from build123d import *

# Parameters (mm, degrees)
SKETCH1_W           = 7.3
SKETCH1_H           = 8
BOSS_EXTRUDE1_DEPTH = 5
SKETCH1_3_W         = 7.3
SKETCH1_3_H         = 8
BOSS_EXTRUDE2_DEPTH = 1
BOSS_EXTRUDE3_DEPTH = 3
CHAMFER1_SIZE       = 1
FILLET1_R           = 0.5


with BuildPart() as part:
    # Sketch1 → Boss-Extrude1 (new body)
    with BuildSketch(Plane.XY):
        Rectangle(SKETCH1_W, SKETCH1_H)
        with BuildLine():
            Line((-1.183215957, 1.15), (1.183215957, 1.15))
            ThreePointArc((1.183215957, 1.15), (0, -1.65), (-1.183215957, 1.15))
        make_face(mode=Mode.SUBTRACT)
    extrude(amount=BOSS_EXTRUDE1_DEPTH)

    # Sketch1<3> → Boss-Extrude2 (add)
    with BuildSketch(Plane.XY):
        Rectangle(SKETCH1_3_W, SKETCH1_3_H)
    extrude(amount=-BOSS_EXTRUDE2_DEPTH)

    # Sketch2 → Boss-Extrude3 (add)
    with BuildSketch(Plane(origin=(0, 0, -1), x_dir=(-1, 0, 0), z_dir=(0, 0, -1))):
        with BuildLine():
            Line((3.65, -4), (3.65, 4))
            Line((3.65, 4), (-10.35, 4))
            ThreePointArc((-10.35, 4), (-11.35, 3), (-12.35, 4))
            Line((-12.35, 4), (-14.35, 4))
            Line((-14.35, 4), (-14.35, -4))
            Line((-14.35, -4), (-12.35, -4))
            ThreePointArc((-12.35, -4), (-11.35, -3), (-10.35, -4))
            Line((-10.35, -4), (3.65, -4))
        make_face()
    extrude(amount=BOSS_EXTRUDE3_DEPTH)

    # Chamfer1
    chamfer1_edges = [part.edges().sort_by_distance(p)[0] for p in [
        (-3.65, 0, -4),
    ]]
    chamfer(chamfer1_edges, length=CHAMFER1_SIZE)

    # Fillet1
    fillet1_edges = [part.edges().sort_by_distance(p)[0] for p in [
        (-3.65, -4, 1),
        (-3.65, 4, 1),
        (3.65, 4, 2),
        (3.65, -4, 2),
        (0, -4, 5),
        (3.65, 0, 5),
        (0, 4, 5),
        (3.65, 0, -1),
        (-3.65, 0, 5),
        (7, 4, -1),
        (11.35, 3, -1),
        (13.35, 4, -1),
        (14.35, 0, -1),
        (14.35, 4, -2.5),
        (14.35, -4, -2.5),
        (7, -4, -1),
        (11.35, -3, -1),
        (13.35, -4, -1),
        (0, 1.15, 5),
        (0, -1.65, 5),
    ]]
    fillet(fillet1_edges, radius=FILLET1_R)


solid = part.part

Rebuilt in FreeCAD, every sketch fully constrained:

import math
import FreeCAD as App
import Part
import Sketcher
from FreeCAD import Vector
Q = App.Units.Quantity


def edges_at(feature, points):
    """Names of the edges that pass closest to the given points."""
    edges = feature.Shape.Edges
    near = lambda p: min(range(len(edges)), key=lambda i: edges[i].distToShape(Part.Vertex(*p))[0])
    return sorted({f"Edge{near(p) + 1}" for p in points})

doc = App.newDocument("Part")
body = doc.addObject("PartDesign::Body", "Body")

# Sketch on XY plane
sketch1 = body.newObject("Sketcher::SketchObject", "Sketch")
sketch1.AttachmentSupport = (doc.getObject("XY_Plane"), [""])
sketch1.MapMode = "FlatFace"
sketch1.addGeometry([
    Part.LineSegment(Vector(-3.6, 4, 0), Vector(-3.6, -4, 0)),  # 0
    Part.LineSegment(Vector(-3.6, -4, 0), Vector(3.6, -4, 0)),  # 1
    Part.LineSegment(Vector(3.6, -4, 0), Vector(3.6, 4, 0)),  # 2
    Part.LineSegment(Vector(3.6, 4, 0), Vector(-3.6, 4, 0)),  # 3
    Part.ArcOfCircle(Part.Circle(Vector(0, 0, 0), Vector(0, 0, 1), 1.6), math.radians(136), math.radians(404)),  # 4
    Part.LineSegment(Vector(-1.2, 1.1, 0), Vector(1.2, 1.1, 0)),  # 5
], False)
sketch1.addConstraint([
    Sketcher.Constraint("Coincident", 0, 2, 1, 1),
    Sketcher.Constraint("Coincident", 1, 2, 2, 1),
    Sketcher.Constraint("Coincident", 2, 2, 3, 1),
    Sketcher.Constraint("Coincident", 3, 2, 0, 1),
    Sketcher.Constraint("Coincident", 4, 1, 5, 1),
    Sketcher.Constraint("Coincident", 5, 2, 4, 2),
    Sketcher.Constraint("Vertical", 0),
    Sketcher.Constraint("Horizontal", 1),
    Sketcher.Constraint("Vertical", 2),
    Sketcher.Constraint("Horizontal", 3),
    Sketcher.Constraint("Horizontal", 5),
    Sketcher.Constraint("Coincident", 4, 3, -1, 1),
    Sketcher.Constraint("Symmetric", 0, 2, 2, 2, -1, 1),
    Sketcher.Constraint("DistanceY", 0, 2, 0, 1, Q("8 mm")),
    Sketcher.Constraint("Radius", 4, Q("1.65 mm")),
    Sketcher.Constraint("DistanceX", 1, 1, 1, 2, Q("7.3 mm")),
    Sketcher.Constraint("DistanceY", -1, 1, 4, 1, Q("1.15 mm")),
])
pad1 = body.newObject("PartDesign::Pad", "Pad")
pad1.Profile = sketch1
pad1.Length = 5

# Sketch on XY plane
sketch2 = body.newObject("Sketcher::SketchObject", "Sketch001")
sketch2.AttachmentSupport = (doc.getObject("XY_Plane"), [""])
sketch2.MapMode = "FlatFace"
sketch2.addGeometry([
    Part.LineSegment(Vector(-4, 4, 0), Vector(-4, -4, 0)),
    Part.LineSegment(Vector(-4, -4, 0), Vector(4, -4, 0)),
    Part.LineSegment(Vector(4, -4, 0), Vector(4, 4, 0)),
    Part.LineSegment(Vector(4, 4, 0), Vector(-4, 4, 0)),
], False)
sketch2.addConstraint([
    Sketcher.Constraint("Coincident", 0, 2, 1, 1),
    Sketcher.Constraint("Coincident", 1, 2, 2, 1),
    Sketcher.Constraint("Coincident", 2, 2, 3, 1),
    Sketcher.Constraint("Coincident", 3, 2, 0, 1),
    Sketcher.Constraint("Vertical", 0),
    Sketcher.Constraint("Horizontal", 1),
    Sketcher.Constraint("Vertical", 2),
    Sketcher.Constraint("Horizontal", 3),
    Sketcher.Constraint("Symmetric", 0, 2, 2, 2, -1, 1),
    Sketcher.Constraint("DistanceY", 0, 2, 0, 1, Q("8 mm")),
    Sketcher.Constraint("DistanceX", 1, 1, 1, 2, Q("7.3 mm")),
])
pad2 = body.newObject("PartDesign::Pad", "Pad001")
pad2.Profile = sketch2
pad2.Length = 1
pad2.Reversed = True

# Sketch on XY plane
sketch3 = body.newObject("Sketcher::SketchObject", "Sketch002")
sketch3.AttachmentSupport = (doc.getObject("XY_Plane"), [""])
sketch3.MapMode = "FlatFace"
sketch3.AttachmentOffset = App.Placement(Vector(0, 0, -1), App.Rotation())
sketch3.addGeometry([
    Part.LineSegment(Vector(-3.6, -4, 0), Vector(-3.6, 4, 0)),  # 0
    Part.LineSegment(Vector(-3.6, 4, 0), Vector(10.3, 4, 0)),  # 1
    Part.ArcOfCircle(Part.Circle(Vector(11.3, 4, 0), Vector(0, 0, 1), 1), math.radians(180), math.radians(360)),  # 2
    Part.LineSegment(Vector(12.3, 4, 0), Vector(14.3, 4, 0)),  # 3
    Part.LineSegment(Vector(14.3, 4, 0), Vector(14.3, -4, 0)),  # 4
    Part.LineSegment(Vector(14.3, -4, 0), Vector(12.3, -4, 0)),  # 5
    Part.ArcOfCircle(Part.Circle(Vector(11.3, -4, 0), Vector(0, 0, 1), 1), math.radians(0), math.radians(180)),  # 6
    Part.LineSegment(Vector(10.3, -4, 0), Vector(-3.6, -4, 0)),  # 7
], False)
sketch3.addConstraint([
    Sketcher.Constraint("Coincident", 0, 2, 1, 1),
    Sketcher.Constraint("Coincident", 1, 2, 2, 1),
    Sketcher.Constraint("Coincident", 2, 2, 3, 1),
    Sketcher.Constraint("Coincident", 3, 2, 4, 1),
    Sketcher.Constraint("Coincident", 4, 2, 5, 1),
    Sketcher.Constraint("Coincident", 5, 2, 6, 1),
    Sketcher.Constraint("Coincident", 6, 2, 7, 1),
    Sketcher.Constraint("Coincident", 7, 2, 0, 1),
    Sketcher.Constraint("Vertical", 0),
    Sketcher.Constraint("Horizontal", 1),
    Sketcher.Constraint("Horizontal", 3),
    Sketcher.Constraint("Vertical", 4),
    Sketcher.Constraint("Horizontal", 5),
    Sketcher.Constraint("Horizontal", 7),
    Sketcher.Constraint("Equal", 2, 6),
    Sketcher.Constraint("Symmetric", 2, 3, 6, 3, -1),
    Sketcher.Constraint("Horizontal", 2, 3, 0, 2),
    Sketcher.Constraint("Horizontal", 1, 2, 2, 2),
    Sketcher.Constraint("Horizontal", 6, 3, 4, 2),
    Sketcher.Constraint("Horizontal", 5, 2, 6, 2),
    Sketcher.Constraint("Radius", 2, Q("1 mm")),
    Sketcher.Constraint("DistanceX", 1, 1, 1, 2, Q("14 mm")),
    Sketcher.Constraint("DistanceX", 3, 1, 3, 2, Q("2 mm")),
    Sketcher.Constraint("DistanceY", 0, 1, 0, 2, Q("8 mm")),
    Sketcher.Constraint("DistanceX", -1, 1, 2, 3, Q("11.35 mm")),
])
pad3 = body.newObject("PartDesign::Pad", "Pad002")
pad3.Profile = sketch3
pad3.Length = 3
pad3.Reversed = True
doc.recompute()

chamfer = body.newObject("PartDesign::Chamfer", "Chamfer")
chamfer.Base = (pad3, edges_at(pad3, [(-3.65, 0, -4)]))
chamfer.Size = 1
doc.recompute()

fillet = body.newObject("PartDesign::Fillet", "Fillet")
fillet.Base = (chamfer, edges_at(chamfer, [
    (-3.65, -4, 1),
    (-3.65, 4, 1),
    (3.65, 4, 2),
    (3.65, -4, 2),
    (0, -4, 5),
    (3.65, 0, 5),
    (0, 4, 5),
    (3.65, 0, -1),
    (-3.65, 0, 5),
    (7, 4, -1),
    (11.35, 3, -1),
    (13.35, 4, -1),
    (14.35, 0, -1),
    (14.35, 4, -2.5),
    (14.35, -4, -2.5),
    (7, -4, -1),
    (11.35, -3, -1),
    (13.35, -4, -1),
    (0, 1.15, 5),
    (0, -1.65, 5),
]))
fillet.Radius = 0.5

doc.recompute()
